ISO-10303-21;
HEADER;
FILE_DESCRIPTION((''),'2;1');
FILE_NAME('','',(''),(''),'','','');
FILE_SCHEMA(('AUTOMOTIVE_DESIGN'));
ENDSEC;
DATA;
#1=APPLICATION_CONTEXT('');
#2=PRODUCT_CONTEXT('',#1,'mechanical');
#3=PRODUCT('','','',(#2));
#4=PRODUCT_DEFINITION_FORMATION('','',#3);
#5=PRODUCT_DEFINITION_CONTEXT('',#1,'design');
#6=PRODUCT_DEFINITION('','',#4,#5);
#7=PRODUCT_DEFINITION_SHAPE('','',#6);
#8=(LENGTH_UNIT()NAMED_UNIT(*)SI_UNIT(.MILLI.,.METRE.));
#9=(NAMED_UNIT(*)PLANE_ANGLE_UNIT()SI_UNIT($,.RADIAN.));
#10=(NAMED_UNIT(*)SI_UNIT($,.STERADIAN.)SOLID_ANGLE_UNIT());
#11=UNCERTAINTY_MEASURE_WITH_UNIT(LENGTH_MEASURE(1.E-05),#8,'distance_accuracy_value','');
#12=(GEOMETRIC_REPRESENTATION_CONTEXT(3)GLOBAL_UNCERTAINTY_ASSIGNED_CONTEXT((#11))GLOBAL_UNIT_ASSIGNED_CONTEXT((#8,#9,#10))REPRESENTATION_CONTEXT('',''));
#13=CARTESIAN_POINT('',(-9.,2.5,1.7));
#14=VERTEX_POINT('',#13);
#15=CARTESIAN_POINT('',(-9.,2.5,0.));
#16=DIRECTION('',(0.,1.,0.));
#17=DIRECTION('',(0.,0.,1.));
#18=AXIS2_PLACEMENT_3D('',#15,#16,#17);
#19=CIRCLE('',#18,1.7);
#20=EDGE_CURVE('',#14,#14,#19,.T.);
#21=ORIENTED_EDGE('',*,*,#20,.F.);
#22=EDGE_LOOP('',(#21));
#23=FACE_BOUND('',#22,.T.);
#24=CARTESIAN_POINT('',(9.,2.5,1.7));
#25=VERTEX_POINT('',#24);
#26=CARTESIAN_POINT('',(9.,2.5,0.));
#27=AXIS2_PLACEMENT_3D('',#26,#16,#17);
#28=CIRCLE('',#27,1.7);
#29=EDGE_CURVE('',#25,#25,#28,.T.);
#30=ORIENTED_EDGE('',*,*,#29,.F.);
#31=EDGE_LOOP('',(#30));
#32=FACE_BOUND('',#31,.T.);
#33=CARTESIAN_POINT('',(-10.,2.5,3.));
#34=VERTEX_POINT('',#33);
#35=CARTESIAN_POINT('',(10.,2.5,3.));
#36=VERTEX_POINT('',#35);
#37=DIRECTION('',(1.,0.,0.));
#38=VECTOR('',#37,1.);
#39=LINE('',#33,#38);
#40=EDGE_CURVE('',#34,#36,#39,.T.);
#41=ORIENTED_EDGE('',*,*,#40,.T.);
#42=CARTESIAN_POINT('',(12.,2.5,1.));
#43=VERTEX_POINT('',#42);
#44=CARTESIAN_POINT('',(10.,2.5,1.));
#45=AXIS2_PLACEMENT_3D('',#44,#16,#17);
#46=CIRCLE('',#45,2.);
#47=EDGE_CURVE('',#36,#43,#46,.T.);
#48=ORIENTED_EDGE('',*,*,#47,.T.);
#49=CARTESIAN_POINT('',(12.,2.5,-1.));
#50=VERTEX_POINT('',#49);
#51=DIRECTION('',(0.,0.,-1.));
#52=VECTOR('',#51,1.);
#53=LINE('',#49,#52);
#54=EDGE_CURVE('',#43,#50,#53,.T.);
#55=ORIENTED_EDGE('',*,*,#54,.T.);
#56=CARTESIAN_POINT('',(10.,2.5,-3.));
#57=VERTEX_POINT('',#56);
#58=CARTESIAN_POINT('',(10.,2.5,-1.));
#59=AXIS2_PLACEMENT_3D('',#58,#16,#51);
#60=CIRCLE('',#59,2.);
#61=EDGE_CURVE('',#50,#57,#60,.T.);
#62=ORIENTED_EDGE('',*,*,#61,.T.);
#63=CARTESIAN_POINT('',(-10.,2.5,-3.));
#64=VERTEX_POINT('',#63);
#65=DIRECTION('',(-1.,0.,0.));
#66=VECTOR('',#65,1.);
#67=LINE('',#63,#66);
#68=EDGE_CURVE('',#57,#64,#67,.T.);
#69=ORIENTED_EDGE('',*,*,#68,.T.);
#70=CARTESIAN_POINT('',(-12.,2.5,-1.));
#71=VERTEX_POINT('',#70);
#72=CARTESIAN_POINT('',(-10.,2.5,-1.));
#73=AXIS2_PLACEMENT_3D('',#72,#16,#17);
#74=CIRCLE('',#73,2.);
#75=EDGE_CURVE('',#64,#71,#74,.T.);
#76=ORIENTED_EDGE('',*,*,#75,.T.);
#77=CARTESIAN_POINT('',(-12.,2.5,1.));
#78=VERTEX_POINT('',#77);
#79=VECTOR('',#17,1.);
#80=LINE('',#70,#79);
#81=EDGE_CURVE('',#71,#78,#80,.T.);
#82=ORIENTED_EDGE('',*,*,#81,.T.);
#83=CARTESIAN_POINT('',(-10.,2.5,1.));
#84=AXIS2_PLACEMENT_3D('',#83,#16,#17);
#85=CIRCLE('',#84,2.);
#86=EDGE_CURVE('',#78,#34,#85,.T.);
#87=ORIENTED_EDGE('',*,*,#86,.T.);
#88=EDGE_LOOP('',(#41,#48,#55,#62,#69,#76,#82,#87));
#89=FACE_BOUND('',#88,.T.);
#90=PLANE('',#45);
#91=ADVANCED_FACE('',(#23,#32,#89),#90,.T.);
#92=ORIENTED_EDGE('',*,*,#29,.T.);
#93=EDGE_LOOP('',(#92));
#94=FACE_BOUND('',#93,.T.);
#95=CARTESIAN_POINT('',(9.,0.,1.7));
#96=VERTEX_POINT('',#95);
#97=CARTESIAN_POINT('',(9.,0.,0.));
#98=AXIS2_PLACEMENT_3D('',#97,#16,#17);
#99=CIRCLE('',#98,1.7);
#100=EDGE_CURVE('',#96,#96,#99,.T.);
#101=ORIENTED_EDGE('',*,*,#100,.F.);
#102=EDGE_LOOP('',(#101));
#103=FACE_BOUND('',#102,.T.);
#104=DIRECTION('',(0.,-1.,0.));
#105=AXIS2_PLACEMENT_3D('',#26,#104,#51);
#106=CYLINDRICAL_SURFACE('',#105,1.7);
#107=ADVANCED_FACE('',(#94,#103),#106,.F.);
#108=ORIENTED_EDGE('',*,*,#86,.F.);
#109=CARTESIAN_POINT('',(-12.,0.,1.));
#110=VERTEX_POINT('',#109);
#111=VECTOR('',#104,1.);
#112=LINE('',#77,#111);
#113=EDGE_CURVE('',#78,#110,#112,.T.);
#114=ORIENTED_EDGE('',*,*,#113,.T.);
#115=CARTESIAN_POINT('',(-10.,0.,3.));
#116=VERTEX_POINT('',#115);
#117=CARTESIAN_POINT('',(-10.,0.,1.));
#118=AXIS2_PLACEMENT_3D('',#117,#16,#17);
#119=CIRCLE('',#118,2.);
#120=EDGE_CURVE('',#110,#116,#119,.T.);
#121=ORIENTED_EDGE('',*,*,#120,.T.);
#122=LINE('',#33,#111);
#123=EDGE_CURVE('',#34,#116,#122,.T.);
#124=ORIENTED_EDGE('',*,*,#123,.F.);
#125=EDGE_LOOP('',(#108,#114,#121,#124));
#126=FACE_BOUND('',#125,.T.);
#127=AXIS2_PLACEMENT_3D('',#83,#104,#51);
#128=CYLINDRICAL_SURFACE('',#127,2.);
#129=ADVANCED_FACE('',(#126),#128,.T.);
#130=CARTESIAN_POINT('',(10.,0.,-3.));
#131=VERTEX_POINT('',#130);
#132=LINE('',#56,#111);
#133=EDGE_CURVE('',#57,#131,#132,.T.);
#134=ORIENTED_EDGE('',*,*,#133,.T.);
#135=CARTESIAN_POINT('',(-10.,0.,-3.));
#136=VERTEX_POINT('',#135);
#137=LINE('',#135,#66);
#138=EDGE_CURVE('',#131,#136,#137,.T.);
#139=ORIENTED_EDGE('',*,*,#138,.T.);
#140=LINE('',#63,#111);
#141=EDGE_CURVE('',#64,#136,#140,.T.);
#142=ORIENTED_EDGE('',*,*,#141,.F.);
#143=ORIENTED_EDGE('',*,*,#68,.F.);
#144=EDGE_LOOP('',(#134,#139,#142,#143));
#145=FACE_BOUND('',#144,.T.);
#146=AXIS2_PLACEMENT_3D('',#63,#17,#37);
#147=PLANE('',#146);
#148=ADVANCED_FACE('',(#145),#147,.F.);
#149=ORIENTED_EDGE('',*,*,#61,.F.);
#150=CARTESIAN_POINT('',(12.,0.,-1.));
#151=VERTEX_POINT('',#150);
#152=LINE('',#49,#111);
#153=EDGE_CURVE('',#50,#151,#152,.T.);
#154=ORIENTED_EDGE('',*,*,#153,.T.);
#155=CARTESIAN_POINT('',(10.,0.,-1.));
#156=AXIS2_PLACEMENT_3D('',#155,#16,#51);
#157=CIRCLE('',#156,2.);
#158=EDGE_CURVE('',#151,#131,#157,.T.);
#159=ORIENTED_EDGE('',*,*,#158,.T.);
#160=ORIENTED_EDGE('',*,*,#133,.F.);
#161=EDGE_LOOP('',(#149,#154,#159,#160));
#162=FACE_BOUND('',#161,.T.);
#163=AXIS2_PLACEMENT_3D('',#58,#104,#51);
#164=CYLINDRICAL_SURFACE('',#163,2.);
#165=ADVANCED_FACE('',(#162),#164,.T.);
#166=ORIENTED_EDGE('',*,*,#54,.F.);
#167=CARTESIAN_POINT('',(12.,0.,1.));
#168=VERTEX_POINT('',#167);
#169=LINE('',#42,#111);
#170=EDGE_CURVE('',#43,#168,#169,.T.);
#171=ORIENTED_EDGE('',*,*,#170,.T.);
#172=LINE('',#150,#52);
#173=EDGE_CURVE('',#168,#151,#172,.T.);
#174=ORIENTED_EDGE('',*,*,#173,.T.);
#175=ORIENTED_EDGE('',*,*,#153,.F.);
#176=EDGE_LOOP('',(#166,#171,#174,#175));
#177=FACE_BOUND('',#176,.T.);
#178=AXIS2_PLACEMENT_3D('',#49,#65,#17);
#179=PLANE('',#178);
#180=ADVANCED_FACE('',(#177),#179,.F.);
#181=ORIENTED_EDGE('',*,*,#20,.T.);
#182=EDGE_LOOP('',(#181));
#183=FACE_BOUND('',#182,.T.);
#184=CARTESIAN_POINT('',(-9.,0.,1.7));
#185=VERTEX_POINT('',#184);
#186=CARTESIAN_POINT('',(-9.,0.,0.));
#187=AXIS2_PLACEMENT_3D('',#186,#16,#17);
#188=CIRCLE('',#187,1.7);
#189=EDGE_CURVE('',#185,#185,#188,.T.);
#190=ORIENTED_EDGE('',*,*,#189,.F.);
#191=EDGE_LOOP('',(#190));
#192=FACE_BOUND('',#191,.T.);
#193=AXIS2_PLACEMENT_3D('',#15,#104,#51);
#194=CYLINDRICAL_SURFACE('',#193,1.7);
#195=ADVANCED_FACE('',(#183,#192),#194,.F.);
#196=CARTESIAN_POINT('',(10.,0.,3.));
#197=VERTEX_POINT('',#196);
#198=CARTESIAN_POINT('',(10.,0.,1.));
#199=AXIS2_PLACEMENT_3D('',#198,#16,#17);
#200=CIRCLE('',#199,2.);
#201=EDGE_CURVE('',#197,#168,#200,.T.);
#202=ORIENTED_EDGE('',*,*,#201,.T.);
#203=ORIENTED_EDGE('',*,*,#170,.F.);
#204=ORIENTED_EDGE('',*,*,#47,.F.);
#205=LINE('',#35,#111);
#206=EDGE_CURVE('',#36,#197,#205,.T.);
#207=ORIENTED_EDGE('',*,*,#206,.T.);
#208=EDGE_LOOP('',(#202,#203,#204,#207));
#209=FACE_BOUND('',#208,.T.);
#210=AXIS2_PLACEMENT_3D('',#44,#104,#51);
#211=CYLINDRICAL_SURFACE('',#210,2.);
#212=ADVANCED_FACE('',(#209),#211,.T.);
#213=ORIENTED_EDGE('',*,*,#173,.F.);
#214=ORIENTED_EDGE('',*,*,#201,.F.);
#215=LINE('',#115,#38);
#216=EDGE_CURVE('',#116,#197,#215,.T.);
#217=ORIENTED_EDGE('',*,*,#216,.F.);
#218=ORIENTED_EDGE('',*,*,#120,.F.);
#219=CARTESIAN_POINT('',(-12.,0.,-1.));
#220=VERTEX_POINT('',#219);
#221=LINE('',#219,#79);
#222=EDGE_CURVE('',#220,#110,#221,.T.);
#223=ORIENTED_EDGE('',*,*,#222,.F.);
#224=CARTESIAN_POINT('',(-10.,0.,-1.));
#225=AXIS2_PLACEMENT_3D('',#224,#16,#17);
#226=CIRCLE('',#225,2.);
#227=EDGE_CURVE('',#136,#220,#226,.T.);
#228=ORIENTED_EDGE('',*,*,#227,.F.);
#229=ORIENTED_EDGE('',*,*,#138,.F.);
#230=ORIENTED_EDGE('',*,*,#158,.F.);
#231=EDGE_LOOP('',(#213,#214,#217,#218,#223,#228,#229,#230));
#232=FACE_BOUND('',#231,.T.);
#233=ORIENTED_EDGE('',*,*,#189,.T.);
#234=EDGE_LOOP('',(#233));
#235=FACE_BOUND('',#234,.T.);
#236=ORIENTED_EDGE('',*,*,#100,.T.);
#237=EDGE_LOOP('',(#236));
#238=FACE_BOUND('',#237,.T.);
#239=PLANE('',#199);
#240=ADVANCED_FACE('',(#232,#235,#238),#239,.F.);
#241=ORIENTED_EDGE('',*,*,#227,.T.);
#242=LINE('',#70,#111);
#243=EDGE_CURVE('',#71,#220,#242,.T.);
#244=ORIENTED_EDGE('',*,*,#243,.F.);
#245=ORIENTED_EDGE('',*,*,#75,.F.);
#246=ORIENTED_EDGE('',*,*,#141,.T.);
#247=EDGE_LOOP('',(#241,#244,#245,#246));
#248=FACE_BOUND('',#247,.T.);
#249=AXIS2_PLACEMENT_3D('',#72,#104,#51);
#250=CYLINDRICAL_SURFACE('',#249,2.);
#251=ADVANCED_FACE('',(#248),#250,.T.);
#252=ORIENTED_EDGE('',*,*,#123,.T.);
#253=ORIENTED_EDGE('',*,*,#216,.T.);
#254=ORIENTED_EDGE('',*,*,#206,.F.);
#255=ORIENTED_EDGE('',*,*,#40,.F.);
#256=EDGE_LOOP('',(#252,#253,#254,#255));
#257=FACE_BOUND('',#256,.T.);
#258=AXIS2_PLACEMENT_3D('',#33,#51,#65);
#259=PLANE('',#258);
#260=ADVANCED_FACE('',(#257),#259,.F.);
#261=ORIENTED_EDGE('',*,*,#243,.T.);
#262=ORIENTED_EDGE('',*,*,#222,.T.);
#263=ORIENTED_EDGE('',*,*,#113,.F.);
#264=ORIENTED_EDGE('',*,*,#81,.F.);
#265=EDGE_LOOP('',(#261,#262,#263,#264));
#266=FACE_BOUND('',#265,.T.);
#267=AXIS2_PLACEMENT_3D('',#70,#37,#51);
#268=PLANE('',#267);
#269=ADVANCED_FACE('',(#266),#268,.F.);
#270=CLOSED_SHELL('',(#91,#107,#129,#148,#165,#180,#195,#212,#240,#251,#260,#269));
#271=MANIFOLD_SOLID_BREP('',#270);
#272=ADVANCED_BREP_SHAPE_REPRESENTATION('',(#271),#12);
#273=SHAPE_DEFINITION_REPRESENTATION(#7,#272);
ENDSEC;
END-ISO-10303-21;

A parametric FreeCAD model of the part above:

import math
import FreeCAD as App
import Part
import Sketcher
Q = App.Units.Quantity

doc = App.newDocument("Part")
params = doc.addObject("Spreadsheet::Sheet", "Params")
for row, (alias, value) in enumerate([
    ("sketch1_radius", "2 mm"),
    ("sketch1_diameter", "3.4 mm"),
    ("sketch1_width", "20 mm"),
    ("sketch1_height", "2 mm"),
    ("pad1_length", "2.5 mm"),
], start=1):
    params.set(f"A{row}", alias)
    params.set(f"B{row}", "=" + value)
    params.setAlias(f"B{row}", alias)

body = doc.addObject("PartDesign::Body", "Body")

# Sketch on XZ plane
sketch1 = doc.addObject("Sketcher::SketchObject", "Sketch")
body.addObject(sketch1)
sketch1.AttachmentSupport = (doc.XZ_Plane, [""])
sketch1.MapMode = "FlatFace"
sketch1.addGeometry(Part.LineSegment(App.Vector(10, -3, 0), App.Vector(-10, -3, 0)), False)
sketch1.addGeometry(Part.ArcOfCircle(Part.Circle(App.Vector(-10, -1, 0), App.Vector(0, 0, 1), 2), math.radians(-180), math.radians(-90)), False)
sketch1.addGeometry(Part.LineSegment(App.Vector(-12, -1, 0), App.Vector(-12, 1, 0)), False)
sketch1.addGeometry(Part.ArcOfCircle(Part.Circle(App.Vector(-10, 1, 0), App.Vector(0, 0, 1), 2), math.radians(90), math.radians(180)), False)
sketch1.addGeometry(Part.LineSegment(App.Vector(-10, 3, 0), App.Vector(10, 3, 0)), False)
sketch1.addGeometry(Part.ArcOfCircle(Part.Circle(App.Vector(10, 1, 0), App.Vector(0, 0, 1), 2), math.radians(0), math.radians(90)), False)
sketch1.addGeometry(Part.LineSegment(App.Vector(12, 1, 0), App.Vector(12, -1, 0)), False)
sketch1.addGeometry(Part.ArcOfCircle(Part.Circle(App.Vector(10, -1, 0), App.Vector(0, 0, 1), 2), math.radians(-90), math.radians(0)), False)
sketch1.addGeometry(Part.Circle(App.Vector(9, 0, 0), App.Vector(0, 0, 1), 1.7), False)
sketch1.addGeometry(Part.Circle(App.Vector(-9, 0, 0), App.Vector(0, 0, 1), 1.7), False)
sketch1.addConstraint(Sketcher.Constraint("Tangent", 0, 2, 1, 2))
sketch1.addConstraint(Sketcher.Constraint("Tangent", 1, 1, 2, 1))
sketch1.addConstraint(Sketcher.Constraint("Tangent", 2, 2, 3, 2))
sketch1.addConstraint(Sketcher.Constraint("Tangent", 3, 1, 4, 1))
sketch1.addConstraint(Sketcher.Constraint("Tangent", 4, 2, 5, 2))
sketch1.addConstraint(Sketcher.Constraint("Tangent", 5, 1, 6, 1))
sketch1.addConstraint(Sketcher.Constraint("Tangent", 6, 2, 7, 2))
sketch1.addConstraint(Sketcher.Constraint("Tangent", 7, 1, 0, 1))
sketch1.addConstraint(Sketcher.Constraint("Horizontal", 0))
sketch1.addConstraint(Sketcher.Constraint("Vertical", 2))
sketch1.addConstraint(Sketcher.Constraint("Horizontal", 4))
sketch1.addConstraint(Sketcher.Constraint("Vertical", 6))
sketch1.addConstraint(Sketcher.Constraint("Equal", 1, 3))
sketch1.addConstraint(Sketcher.Constraint("Equal", 3, 5))
sketch1.addConstraint(Sketcher.Constraint("Equal", 5, 7))
sketch1.addConstraint(Sketcher.Constraint("Equal", 8, 9))
sketch1.addConstraint(Sketcher.Constraint("Symmetric", 1, 3, 5, 3, -1, 1))
sketch1.addConstraint(Sketcher.Constraint("Symmetric", 8, 3, 9, 3, -1, 1))
sketch1.addConstraint(Sketcher.Constraint("PointOnObject", 8, 3, -1))
sketch1.addConstraint(Sketcher.Constraint("Radius", 1, Q("2 mm")))
sketch1.addConstraint(Sketcher.Constraint("Diameter", 8, Q("3.4 mm")))
sketch1.addConstraint(Sketcher.Constraint("DistanceX", 0, 2, 0, 1, Q("20 mm")))
sketch1.addConstraint(Sketcher.Constraint("DistanceY", 2, 1, 2, 2, Q("2 mm")))
sketch1.addConstraint(Sketcher.Constraint("DistanceX", -1, 1, 8, 3, Q("9 mm")))
sketch1.setExpression("Constraints[19]", "Params.sketch1_radius")
sketch1.setExpression("Constraints[20]", "Params.sketch1_diameter")
sketch1.setExpression("Constraints[21]", "Params.sketch1_width")
sketch1.setExpression("Constraints[22]", "Params.sketch1_height")
pad1 = doc.addObject("PartDesign::Pad", "Pad")
body.addObject(pad1)
pad1.Profile = sketch1
pad1.setExpression("Length", "Params.pad1_length")
pad1.Reversed = True

doc.recompute()
